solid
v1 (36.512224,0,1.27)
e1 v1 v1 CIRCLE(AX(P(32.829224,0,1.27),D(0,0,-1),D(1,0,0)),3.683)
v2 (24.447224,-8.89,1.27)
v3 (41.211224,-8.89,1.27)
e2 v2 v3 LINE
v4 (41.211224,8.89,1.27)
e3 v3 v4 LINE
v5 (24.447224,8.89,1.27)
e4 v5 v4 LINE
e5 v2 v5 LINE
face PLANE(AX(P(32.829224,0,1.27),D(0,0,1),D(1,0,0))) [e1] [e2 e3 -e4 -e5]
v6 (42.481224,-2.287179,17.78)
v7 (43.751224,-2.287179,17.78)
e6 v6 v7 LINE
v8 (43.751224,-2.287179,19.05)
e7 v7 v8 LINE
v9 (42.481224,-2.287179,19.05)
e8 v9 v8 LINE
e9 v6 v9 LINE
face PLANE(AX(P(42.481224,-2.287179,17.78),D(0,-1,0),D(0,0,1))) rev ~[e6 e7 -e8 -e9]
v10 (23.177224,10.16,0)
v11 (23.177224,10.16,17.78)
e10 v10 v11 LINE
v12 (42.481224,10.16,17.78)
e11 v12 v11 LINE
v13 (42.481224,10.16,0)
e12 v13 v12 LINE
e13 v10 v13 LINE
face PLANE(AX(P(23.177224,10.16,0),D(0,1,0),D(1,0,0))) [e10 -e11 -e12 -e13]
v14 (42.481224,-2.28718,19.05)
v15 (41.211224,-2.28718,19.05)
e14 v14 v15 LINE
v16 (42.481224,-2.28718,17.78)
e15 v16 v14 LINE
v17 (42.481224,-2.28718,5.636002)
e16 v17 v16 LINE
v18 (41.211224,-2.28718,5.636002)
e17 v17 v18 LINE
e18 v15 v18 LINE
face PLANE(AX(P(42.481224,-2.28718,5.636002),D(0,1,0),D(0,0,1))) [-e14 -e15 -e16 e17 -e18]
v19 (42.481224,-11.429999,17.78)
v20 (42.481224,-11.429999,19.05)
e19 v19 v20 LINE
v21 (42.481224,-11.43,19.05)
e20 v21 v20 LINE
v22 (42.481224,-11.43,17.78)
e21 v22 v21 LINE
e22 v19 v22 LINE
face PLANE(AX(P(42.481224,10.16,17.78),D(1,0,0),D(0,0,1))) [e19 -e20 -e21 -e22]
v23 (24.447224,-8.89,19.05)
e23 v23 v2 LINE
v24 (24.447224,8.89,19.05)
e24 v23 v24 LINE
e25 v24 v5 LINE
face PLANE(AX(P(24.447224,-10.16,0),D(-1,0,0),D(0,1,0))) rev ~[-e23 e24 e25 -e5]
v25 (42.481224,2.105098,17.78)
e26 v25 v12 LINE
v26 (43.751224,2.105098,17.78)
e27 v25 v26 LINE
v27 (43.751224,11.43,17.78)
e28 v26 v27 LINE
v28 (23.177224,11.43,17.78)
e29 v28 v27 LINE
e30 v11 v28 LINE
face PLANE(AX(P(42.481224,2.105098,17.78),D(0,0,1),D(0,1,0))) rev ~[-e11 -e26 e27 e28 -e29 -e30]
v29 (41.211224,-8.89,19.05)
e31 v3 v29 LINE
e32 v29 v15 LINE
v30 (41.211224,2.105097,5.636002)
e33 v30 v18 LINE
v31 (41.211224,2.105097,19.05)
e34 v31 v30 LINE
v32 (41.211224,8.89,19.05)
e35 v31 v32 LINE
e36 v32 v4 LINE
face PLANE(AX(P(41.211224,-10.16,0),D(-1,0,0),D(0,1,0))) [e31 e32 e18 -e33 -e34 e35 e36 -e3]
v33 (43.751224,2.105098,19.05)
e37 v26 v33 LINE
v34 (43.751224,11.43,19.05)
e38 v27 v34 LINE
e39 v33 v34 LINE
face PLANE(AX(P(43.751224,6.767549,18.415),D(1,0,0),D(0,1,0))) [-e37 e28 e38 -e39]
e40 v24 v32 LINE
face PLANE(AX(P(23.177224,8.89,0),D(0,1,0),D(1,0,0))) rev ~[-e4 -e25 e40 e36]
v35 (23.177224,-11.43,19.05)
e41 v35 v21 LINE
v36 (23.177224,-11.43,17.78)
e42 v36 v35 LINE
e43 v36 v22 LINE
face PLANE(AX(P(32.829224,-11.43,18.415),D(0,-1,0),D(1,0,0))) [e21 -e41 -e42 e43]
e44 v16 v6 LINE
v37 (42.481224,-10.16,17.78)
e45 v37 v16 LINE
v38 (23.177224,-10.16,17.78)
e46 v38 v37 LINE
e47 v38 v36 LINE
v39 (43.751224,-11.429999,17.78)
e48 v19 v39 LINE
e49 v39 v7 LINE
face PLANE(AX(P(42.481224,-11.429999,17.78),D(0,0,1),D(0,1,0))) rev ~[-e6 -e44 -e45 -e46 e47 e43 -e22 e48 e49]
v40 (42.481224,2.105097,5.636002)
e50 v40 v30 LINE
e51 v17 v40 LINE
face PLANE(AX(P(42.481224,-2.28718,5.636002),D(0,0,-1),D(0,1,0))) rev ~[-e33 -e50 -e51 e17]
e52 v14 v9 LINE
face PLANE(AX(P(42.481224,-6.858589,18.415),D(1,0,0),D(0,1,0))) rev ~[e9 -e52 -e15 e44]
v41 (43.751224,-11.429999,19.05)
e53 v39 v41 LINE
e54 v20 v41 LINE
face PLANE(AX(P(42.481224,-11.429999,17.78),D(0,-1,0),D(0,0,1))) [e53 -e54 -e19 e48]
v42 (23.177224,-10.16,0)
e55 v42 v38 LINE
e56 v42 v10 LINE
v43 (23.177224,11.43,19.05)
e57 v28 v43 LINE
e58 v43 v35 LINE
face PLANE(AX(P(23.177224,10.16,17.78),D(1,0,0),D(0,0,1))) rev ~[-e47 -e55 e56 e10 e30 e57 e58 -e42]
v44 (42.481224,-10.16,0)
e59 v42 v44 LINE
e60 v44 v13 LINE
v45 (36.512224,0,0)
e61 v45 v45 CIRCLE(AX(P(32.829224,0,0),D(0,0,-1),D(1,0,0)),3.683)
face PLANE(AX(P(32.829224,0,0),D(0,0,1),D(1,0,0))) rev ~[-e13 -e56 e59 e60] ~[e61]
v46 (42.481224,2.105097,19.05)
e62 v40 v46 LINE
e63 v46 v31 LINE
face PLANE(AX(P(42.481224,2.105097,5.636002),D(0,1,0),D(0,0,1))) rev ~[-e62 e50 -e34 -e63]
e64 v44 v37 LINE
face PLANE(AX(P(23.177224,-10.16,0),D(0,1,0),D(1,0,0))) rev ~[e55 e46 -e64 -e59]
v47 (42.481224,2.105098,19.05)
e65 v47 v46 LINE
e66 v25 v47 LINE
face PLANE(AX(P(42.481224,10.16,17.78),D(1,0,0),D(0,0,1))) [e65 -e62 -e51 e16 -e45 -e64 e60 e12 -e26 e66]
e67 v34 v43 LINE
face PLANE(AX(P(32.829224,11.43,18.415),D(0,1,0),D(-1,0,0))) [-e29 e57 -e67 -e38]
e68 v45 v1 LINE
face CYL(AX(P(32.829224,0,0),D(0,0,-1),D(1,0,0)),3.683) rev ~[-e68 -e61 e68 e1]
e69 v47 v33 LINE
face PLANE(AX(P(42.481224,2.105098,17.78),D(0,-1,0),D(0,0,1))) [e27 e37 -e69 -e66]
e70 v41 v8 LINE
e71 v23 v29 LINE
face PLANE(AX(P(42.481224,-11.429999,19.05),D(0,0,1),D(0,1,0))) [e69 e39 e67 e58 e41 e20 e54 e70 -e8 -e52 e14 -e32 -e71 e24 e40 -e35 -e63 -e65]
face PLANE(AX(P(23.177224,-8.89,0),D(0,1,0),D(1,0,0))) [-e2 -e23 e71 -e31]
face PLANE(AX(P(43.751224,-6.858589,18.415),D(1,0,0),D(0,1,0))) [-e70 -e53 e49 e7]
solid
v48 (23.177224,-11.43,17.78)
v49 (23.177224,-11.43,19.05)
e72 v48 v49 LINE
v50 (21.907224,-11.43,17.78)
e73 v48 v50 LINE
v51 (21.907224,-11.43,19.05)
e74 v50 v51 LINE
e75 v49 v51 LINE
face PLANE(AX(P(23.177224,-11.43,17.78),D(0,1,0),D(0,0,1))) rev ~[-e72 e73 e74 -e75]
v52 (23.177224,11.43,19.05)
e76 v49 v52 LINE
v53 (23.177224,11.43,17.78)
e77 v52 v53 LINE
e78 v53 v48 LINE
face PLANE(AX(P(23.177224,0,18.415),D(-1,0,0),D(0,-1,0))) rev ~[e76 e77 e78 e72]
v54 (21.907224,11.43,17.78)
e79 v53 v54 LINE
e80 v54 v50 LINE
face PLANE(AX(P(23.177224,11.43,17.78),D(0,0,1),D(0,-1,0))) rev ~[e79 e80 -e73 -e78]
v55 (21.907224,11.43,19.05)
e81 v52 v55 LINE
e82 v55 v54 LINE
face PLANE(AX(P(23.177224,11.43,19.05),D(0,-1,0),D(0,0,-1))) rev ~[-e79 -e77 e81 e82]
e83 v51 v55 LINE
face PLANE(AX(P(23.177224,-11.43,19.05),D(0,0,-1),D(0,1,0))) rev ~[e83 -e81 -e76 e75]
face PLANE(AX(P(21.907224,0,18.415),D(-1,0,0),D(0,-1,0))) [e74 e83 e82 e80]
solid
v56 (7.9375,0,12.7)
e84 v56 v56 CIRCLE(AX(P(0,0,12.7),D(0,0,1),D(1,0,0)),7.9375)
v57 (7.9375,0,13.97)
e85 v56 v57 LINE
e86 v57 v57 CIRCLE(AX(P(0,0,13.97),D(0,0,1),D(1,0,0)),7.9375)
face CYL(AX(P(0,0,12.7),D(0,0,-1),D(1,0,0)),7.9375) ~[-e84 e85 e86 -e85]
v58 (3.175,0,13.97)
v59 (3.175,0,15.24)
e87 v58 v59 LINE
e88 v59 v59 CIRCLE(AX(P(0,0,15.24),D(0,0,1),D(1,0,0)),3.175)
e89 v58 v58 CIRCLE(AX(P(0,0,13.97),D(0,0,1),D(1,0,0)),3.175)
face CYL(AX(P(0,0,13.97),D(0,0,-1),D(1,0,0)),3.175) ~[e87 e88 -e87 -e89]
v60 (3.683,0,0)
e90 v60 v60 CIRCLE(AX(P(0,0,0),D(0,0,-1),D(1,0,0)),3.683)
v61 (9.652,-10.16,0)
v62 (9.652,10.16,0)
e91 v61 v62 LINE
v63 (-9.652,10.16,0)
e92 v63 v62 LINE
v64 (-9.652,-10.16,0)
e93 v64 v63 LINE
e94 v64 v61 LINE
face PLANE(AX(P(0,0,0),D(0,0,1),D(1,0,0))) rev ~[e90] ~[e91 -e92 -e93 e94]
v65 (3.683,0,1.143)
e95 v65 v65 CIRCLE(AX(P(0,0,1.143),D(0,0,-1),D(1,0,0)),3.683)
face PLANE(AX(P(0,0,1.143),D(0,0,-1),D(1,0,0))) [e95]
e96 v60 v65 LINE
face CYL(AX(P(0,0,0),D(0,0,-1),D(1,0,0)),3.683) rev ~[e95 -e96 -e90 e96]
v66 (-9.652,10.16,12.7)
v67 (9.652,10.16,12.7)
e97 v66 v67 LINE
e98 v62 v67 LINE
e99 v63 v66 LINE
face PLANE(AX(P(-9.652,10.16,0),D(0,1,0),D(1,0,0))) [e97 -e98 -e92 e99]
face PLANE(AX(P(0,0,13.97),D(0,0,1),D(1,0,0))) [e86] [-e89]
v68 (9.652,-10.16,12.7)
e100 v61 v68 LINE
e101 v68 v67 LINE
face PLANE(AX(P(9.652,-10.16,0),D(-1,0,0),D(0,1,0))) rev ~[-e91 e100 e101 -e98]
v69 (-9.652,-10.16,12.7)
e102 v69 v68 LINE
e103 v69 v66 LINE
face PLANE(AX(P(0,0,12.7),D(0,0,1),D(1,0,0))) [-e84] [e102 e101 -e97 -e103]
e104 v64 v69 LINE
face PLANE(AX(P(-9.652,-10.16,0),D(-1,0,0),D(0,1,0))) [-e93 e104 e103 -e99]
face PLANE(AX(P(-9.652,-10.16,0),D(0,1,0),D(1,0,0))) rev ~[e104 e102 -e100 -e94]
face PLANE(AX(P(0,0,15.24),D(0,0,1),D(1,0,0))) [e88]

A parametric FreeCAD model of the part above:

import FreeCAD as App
import Part
import Sketcher

V = App.Vector
Q = App.Units.Quantity


def faces_at(feature, points):
    """Names of the faces that lie closest to the given points."""
    faces = feature.Shape.Faces
    near = lambda p: min(range(len(faces)), key=lambda i: faces[i].distToShape(Part.Vertex(*p))[0])
    return sorted({f"Face{near(p) + 1}" for p in points})

doc = App.newDocument("Part")
body = doc.addObject("PartDesign::Body", "Body")

# Sketch on XY plane
sketch1 = body.newObject("Sketcher::SketchObject", "Sketch")
sketch1.AttachmentSupport = (doc.getObject("XY_Plane"), [""])
sketch1.MapMode = "FlatFace"
sketch1.addGeometry([
    Part.LineSegment(V(-10, 10, 0), V(-10, -10, 0)),
    Part.LineSegment(V(-10, -10, 0), V(10, -10, 0)),
    Part.LineSegment(V(10, -10, 0), V(10, 10, 0)),
    Part.LineSegment(V(10, 10, 0), V(-10, 10, 0)),
], False)
sketch1.addConstraint([
    Sketcher.Constraint("Coincident", 0, 2, 1, 1),
    Sketcher.Constraint("Coincident", 1, 2, 2, 1),
    Sketcher.Constraint("Coincident", 2, 2, 3, 1),
    Sketcher.Constraint("Coincident", 3, 2, 0, 1),
    Sketcher.Constraint("Vertical", 0),
    Sketcher.Constraint("Horizontal", 1),
    Sketcher.Constraint("Vertical", 2),
    Sketcher.Constraint("Horizontal", 3),
    Sketcher.Constraint("Symmetric", 0, 2, 2, 2, -1, 1),
    Sketcher.Constraint("DistanceY", 0, 2, 0, 1, Q("0.8 in")),
    Sketcher.Constraint("DistanceX", 1, 1, 1, 2, Q("0.76 in")),
])
pad1 = body.newObject("PartDesign::Pad", "Pad")
pad1.Profile = sketch1
pad1.Length = Q("0.5 in")

# Sketch on XY plane
sketch2 = body.newObject("Sketcher::SketchObject", "Sketch001")
sketch2.AttachmentSupport = (doc.getObject("XY_Plane"), [""])
sketch2.MapMode = "FlatFace"
sketch2.AttachmentOffset = App.Placement(V(0, 0, 0.5 * 25.4), App.Rotation())
sketch2.addGeometry(Part.Circle(V(0, 0, 0), V(0, 0, 1), 8), False)
sketch2.addConstraint([
    Sketcher.Constraint("Coincident", 0, 3, -1, 1),
    Sketcher.Constraint("Diameter", 0, Q("0.625 in")),
])
pad2 = body.newObject("PartDesign::Pad", "Pad001")
pad2.Profile = sketch2
pad2.Length = Q("0.05 in")

# Sketch on XY plane
sketch3 = body.newObject("Sketcher::SketchObject", "Sketch002")
sketch3.AttachmentSupport = (doc.getObject("XY_Plane"), [""])
sketch3.MapMode = "FlatFace"
sketch3.AttachmentOffset = App.Placement(V(0, 0, 0.55 * 25.4), App.Rotation())
sketch3.addGeometry(Part.Circle(V(0, 0, 0), V(0, 0, 1), 3.2), False)
sketch3.addConstraint([
    Sketcher.Constraint("Coincident", 0, 3, -1, 1),
    Sketcher.Constraint("Diameter", 0, Q("0.25 in")),
])
pad3 = body.newObject("PartDesign::Pad", "Pad002")
pad3.Profile = sketch3
pad3.Length = Q("0.05 in")

# Sketch on XY plane
sketch4 = body.newObject("Sketcher::SketchObject", "Sketch003")
sketch4.AttachmentSupport = (doc.getObject("XY_Plane"), [""])
sketch4.MapMode = "FlatFace"
sketch4.addGeometry(Part.Circle(V(0, 0, 0), V(0, 0, 1), 3.7), False)
sketch4.addConstraint([
    Sketcher.Constraint("Coincident", 0, 3, -1, 1),
    Sketcher.Constraint("Diameter", 0, Q("0.29 in")),
])
pocket1 = body.newObject("PartDesign::Pocket", "Pocket")
pocket1.Profile = sketch4
pocket1.Length = Q("0.045 in")
pocket1.Reversed = True
body2 = doc.addObject("PartDesign::Body", "Body001")

# Sketch on XY plane
sketch5 = body2.newObject("Sketcher::SketchObject", "Sketch004")
sketch5.AttachmentSupport = (doc.getObject("XY_Plane001"), [""])
sketch5.MapMode = "FlatFace"
sketch5.addGeometry([
    Part.LineSegment(V(23, 10, 0), V(23, -10, 0)),
    Part.LineSegment(V(23, -10, 0), V(42, -10, 0)),
    Part.LineSegment(V(42, -10, 0), V(42, 10, 0)),
    Part.LineSegment(V(42, 10, 0), V(23, 10, 0)),
], False)
sketch5.addConstraint([
    Sketcher.Constraint("Coincident", 0, 2, 1, 1),
    Sketcher.Constraint("Coincident", 1, 2, 2, 1),
    Sketcher.Constraint("Coincident", 2, 2, 3, 1),
    Sketcher.Constraint("Coincident", 3, 2, 0, 1),
    Sketcher.Constraint("Vertical", 0),
    Sketcher.Constraint("Horizontal", 1),
    Sketcher.Constraint("Vertical", 2),
    Sketcher.Constraint("Horizontal", 3),
    Sketcher.Constraint("DistanceY", 0, 2, 0, 1, Q("0.8 in")),
    Sketcher.Constraint("DistanceX", 1, 1, 1, 2, Q("0.76 in")),
    Sketcher.Constraint("DistanceY", 0, 2, -1, 1, Q("0.4 in")),
    Sketcher.Constraint("DistanceX", -1, 1, 0, 2, Q("23.177224 mm")),
])
pad4 = body2.newObject("PartDesign::Pad", "Pad003")
pad4.Profile = sketch5
pad4.Length = Q("0.75 in")
doc.recompute()

thickness = body2.newObject("PartDesign::Thickness", "Thickness")
thickness.Base = (pad4, faces_at(pad4, [(32.829, 0, 19.05)]))
thickness.Value = Q("0.05 in")
thickness.Reversed = True
thickness.Join = "Arc"

# Sketch on YZ plane
sketch6 = body2.newObject("Sketcher::SketchObject", "Sketch005")
sketch6.AttachmentSupport = (doc.getObject("YZ_Plane001"), [""])
sketch6.MapMode = "FlatFace"
sketch6.AttachmentOffset = App.Placement(V(0, 0, 42.481224), App.Rotation())
sketch6.addGeometry([
    Part.LineSegment(V(-2.3, 19.1, 0), V(-2.3, 5.6, 0)),
    Part.LineSegment(V(-2.3, 5.6, 0), V(2.1, 5.6, 0)),
    Part.LineSegment(V(2.1, 5.6, 0), V(2.1, 19.1, 0)),
    Part.LineSegment(V(2.1, 19.1, 0), V(-2.3, 19.1, 0)),
], False)
sketch6.addConstraint([
    Sketcher.Constraint("Coincident", 0, 2, 1, 1),
    Sketcher.Constraint("Coincident", 1, 2, 2, 1),
    Sketcher.Constraint("Coincident", 2, 2, 3, 1),
    Sketcher.Constraint("Coincident", 3, 2, 0, 1),
    Sketcher.Constraint("Vertical", 0),
    Sketcher.Constraint("Horizontal", 1),
    Sketcher.Constraint("Vertical", 2),
    Sketcher.Constraint("Horizontal", 3),
    Sketcher.Constraint("DistanceY", -1, 1, 2, 2, Q("0.75 in")),
    Sketcher.Constraint("DistanceX", 1, 1, 1, 2, Q("4.392277 mm")),
    Sketcher.Constraint("DistanceY", 0, 2, 0, 1, Q("13.413998 mm")),
    Sketcher.Constraint("DistanceX", 0, 2, -1, 1, Q("2.28718 mm")),
])
pocket2 = body2.newObject("PartDesign::Pocket", "Pocket001")
pocket2.Profile = sketch6
pocket2.Length = Q("0.07 in")

# Sketch on XY plane
sketch7 = body2.newObject("Sketcher::SketchObject", "Sketch006")
sketch7.AttachmentSupport = (doc.getObject("XY_Plane001"), [""])
sketch7.MapMode = "FlatFace"
sketch7.addGeometry(Part.Circle(V(32.8, 0, 0), V(0, 0, 1), 3.7), False)
sketch7.addConstraint([
    Sketcher.Constraint("PointOnObject", 0, 3, -1),
    Sketcher.Constraint("Diameter", 0, Q("0.29 in")),
    Sketcher.Constraint("DistanceX", -1, 1, 0, 3, Q("32.829224 mm")),
])
pocket3 = body2.newObject("PartDesign::Pocket", "Pocket002")
pocket3.Profile = sketch7
pocket3.Length = Q("0.2 in")
pocket3.Reversed = True

# Sketch on XZ plane
sketch8 = body2.newObject("Sketcher::SketchObject", "Sketch007")
sketch8.AttachmentSupport = (doc.getObject("XZ_Plane001"), [""])
sketch8.MapMode = "FlatFace"
sketch8.AttachmentOffset = App.Placement(V(0, 0, 0.4 * 25.4), App.Rotation())
sketch8.addGeometry([
    Part.LineSegment(V(23.2, 19.1, 0), V(23.2, 17.8, 0)),
    Part.LineSegment(V(23.2, 17.8, 0), V(42.5, 17.8, 0)),
    Part.LineSegment(V(42.5, 17.8, 0), V(42.5, 19.1, 0)),
    Part.LineSegment(V(42.5, 19.1, 0), V(23.2, 19.1, 0)),
], False)
sketch8.addConstraint([
    Sketcher.Constraint("Coincident", 0, 2, 1, 1),
    Sketcher.Constraint("Coincident", 1, 2, 2, 1),
    Sketcher.Constraint("Coincident", 2, 2, 3, 1),
    Sketcher.Constraint("Coincident", 3, 2, 0, 1),
    Sketcher.Constraint("Vertical", 0),
    Sketcher.Constraint("Horizontal", 1),
    Sketcher.Constraint("Vertical", 2),
    Sketcher.Constraint("Horizontal", 3),
    Sketcher.Constraint("DistanceX", 1, 1, 1, 2, Q("0.76 in")),
    Sketcher.Constraint("DistanceY", 0, 2, 0, 1, Q("0.05 in")),
    Sketcher.Constraint("DistanceY", -1, 1, 0, 2, Q("0.7 in")),
    Sketcher.Constraint("DistanceX", -1, 1, 0, 2, Q("23.177224 mm")),
])
pad5 = body2.newObject("PartDesign::Pad", "Pad004")
pad5.Profile = sketch8
pad5.Length = Q("0.05 in")

# Sketch on XZ plane
sketch9 = body2.newObject("Sketcher::SketchObject", "Sketch008")
sketch9.AttachmentSupport = (doc.getObject("XZ_Plane001"), [""])
sketch9.MapMode = "FlatFace"
sketch9.AttachmentOffset = App.Placement(V(0, 0, -0.4 * 25.4), App.Rotation())
sketch9.addGeometry([
    Part.LineSegment(V(42.5, 19.1, 0), V(42.5, 17.8, 0)),
    Part.LineSegment(V(42.5, 17.8, 0), V(23.2, 17.8, 0)),
    Part.LineSegment(V(23.2, 17.8, 0), V(23.2, 19.1, 0)),
    Part.LineSegment(V(23.2, 19.1, 0), V(42.5, 19.1, 0)),
], False)
sketch9.addConstraint([
    Sketcher.Constraint("Coincident", 0, 2, 1, 1),
    Sketcher.Constraint("Coincident", 1, 2, 2, 1),
    Sketcher.Constraint("Coincident", 2, 2, 3, 1),
    Sketcher.Constraint("Coincident", 3, 2, 0, 1),
    Sketcher.Constraint("Vertical", 0),
    Sketcher.Constraint("Horizontal", 1),
    Sketcher.Constraint("Vertical", 2),
    Sketcher.Constraint("Horizontal", 3),
    Sketcher.Constraint("DistanceX", 1, 2, 1, 1, Q("0.76 in")),
    Sketcher.Constraint("DistanceY", 0, 2, 0, 1, Q("0.05 in")),
    Sketcher.Constraint("DistanceY", -1, 1, 0, 2, Q("0.7 in")),
    Sketcher.Constraint("DistanceX", -1, 1, 0, 2, Q("42.481224 mm")),
])
pad6 = body2.newObject("PartDesign::Pad", "Pad005")
pad6.Profile = sketch9
pad6.Length = Q("0.05 in")
pad6.Reversed = True

# Sketch on YZ plane
sketch10 = body2.newObject("Sketcher::SketchObject", "Sketch009")
sketch10.AttachmentSupport = (doc.getObject("YZ_Plane001"), [""])
sketch10.MapMode = "FlatFace"
sketch10.AttachmentOffset = App.Placement(V(0, 0, 42.481224), App.Rotation())
sketch10.addGeometry([
    Part.LineSegment(V(-11.4, 19.1, 0), V(-11.4, 17.8, 0)),  # 0
    Part.LineSegment(V(-11.4, 17.8, 0), V(-2.3, 17.8, 0)),  # 1
    Part.LineSegment(V(-2.3, 17.8, 0), V(-2.3, 19.1, 0)),  # 2
    Part.LineSegment(V(-2.3, 19.1, 0), V(-11.4, 19.1, 0)),  # 3
    Part.LineSegment(V(2.1, 19.1, 0), V(2.1, 17.8, 0)),  # 4
    Part.LineSegment(V(2.1, 17.8, 0), V(11.4, 17.8, 0)),  # 5
    Part.LineSegment(V(11.4, 17.8, 0), V(11.4, 19.1, 0)),  # 6
    Part.LineSegment(V(11.4, 19.1, 0), V(2.1, 19.1, 0)),  # 7
], False)
sketch10.addConstraint([
    Sketcher.Constraint("Coincident", 0, 2, 1, 1),
    Sketcher.Constraint("Coincident", 1, 2, 2, 1),
    Sketcher.Constraint("Coincident", 2, 2, 3, 1),
    Sketcher.Constraint("Coincident", 3, 2, 0, 1),
    Sketcher.Constraint("Coincident", 4, 2, 5, 1),
    Sketcher.Constraint("Coincident", 5, 2, 6, 1),
    Sketcher.Constraint("Coincident", 6, 2, 7, 1),
    Sketcher.Constraint("Coincident", 7, 2, 4, 1),
    Sketcher.Constraint("Vertical", 0),
    Sketcher.Constraint("Horizontal", 1),
    Sketcher.Constraint("Vertical", 2),
    Sketcher.Constraint("Horizontal", 3),
    Sketcher.Constraint("Vertical", 4),
    Sketcher.Constraint("Horizontal", 5),
    Sketcher.Constraint("Vertical", 6),
    Sketcher.Constraint("Horizontal", 7),
    Sketcher.Constraint("Symmetric", 0, 2, 5, 2, -2),
    Sketcher.Constraint("Horizontal", 3, 2, 6, 2),
    Sketcher.Constraint("DistanceY", 0, 2, 0, 1, Q("0.05 in")),
    Sketcher.Constraint("DistanceY", -1, 1, 0, 2, Q("0.7 in")),
    Sketcher.Constraint("DistanceX", 0, 2, 5, 2, Q("0.9 in")),
    Sketcher.Constraint("DistanceX", 1, 1, 1, 2, Q("9.142821 mm")),
    Sketcher.Constraint("DistanceX", 5, 1, 5, 2, Q("9.324902 mm")),
])
pad7 = body2.newObject("PartDesign::Pad", "Pad006")
pad7.Profile = sketch10
pad7.Length = Q("0.05 in")
body3 = doc.addObject("PartDesign::Body", "Body002")

# Sketch on YZ plane
sketch11 = body3.newObject("Sketcher::SketchObject", "Sketch010")
sketch11.AttachmentSupport = (doc.getObject("YZ_Plane002"), [""])
sketch11.MapMode = "FlatFace"
sketch11.AttachmentOffset = App.Placement(V(0, 0, 23.177224), App.Rotation())
sketch11.addGeometry([
    Part.LineSegment(V(-11.4, 19.1, 0), V(11.4, 19.1, 0)),
    Part.LineSegment(V(11.4, 19.1, 0), V(11.4, 17.8, 0)),
    Part.LineSegment(V(11.4, 17.8, 0), V(-11.4, 17.8, 0)),
    Part.LineSegment(V(-11.4, 17.8, 0), V(-11.4, 19.1, 0)),
], False)
sketch11.addConstraint([
    Sketcher.Constraint("Coincident", 0, 2, 1, 1),
    Sketcher.Constraint("Coincident", 1, 2, 2, 1),
    Sketcher.Constraint("Coincident", 2, 2, 3, 1),
    Sketcher.Constraint("Coincident", 3, 2, 0, 1),
    Sketcher.Constraint("Horizontal", 0),
    Sketcher.Constraint("Vertical", 1),
    Sketcher.Constraint("Horizontal", 2),
    Sketcher.Constraint("Vertical", 3),
    Sketcher.Constraint("DistanceX", 0, 1, 0, 2, Q("0.9 in")),
    Sketcher.Constraint("DistanceY", 1, 2, 1, 1, Q("0.05 in")),
    Sketcher.Constraint("DistanceY", -1, 1, 1, 2, Q("0.7 in")),
    Sketcher.Constraint("DistanceX", -1, 1, 0, 2, Q("0.45 in")),
])
pad8 = body3.newObject("PartDesign::Pad", "Pad007")
pad8.Profile = sketch11
pad8.Length = Q("0.05 in")
pad8.Reversed = True

doc.recompute()
